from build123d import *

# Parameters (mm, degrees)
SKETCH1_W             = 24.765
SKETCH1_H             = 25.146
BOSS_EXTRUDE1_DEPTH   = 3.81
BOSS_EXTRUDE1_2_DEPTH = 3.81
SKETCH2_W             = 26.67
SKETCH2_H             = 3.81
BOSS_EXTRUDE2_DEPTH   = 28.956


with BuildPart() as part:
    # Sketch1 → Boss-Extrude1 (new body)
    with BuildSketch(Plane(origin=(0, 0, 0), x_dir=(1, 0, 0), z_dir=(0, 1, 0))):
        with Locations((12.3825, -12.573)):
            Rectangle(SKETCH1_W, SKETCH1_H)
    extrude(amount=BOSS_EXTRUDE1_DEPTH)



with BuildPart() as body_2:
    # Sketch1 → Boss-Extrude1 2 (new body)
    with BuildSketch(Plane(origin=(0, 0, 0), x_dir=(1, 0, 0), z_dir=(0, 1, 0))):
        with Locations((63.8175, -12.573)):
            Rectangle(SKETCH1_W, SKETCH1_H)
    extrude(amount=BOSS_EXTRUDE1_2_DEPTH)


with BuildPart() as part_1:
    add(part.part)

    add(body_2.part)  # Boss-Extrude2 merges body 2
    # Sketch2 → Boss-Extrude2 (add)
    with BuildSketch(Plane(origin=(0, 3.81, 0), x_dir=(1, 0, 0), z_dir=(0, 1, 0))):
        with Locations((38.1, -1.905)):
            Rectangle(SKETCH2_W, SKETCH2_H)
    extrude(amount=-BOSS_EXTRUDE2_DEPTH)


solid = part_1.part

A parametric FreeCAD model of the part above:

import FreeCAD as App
import Part
import Sketcher
from FreeCAD import Vector
Q = App.Units.Quantity

doc = App.newDocument("Part")
params = doc.addObject("Spreadsheet::Sheet", "Params")
for row, (alias, value) in enumerate([
    ("sketch1_height", "0.99 in"),
    ("sketch1_width", "0.975 in"),
    ("pad1_length", "0.15 in"),
    ("sketch2_height", "0.99 in"),
    ("sketch2_width", "0.975 in"),
    ("pad2_length", "0.15 in"),
    ("sketch3_width", "1.05 in"),
    ("sketch3_height", "0.15 in"),
    ("pad3_length", "1.14 in"),
], start=1):
    params.set(f"A{row}", alias)
    params.set(f"B{row}", "=" + value)
    params.setAlias(f"B{row}", alias)

body = doc.addObject("PartDesign::Body", "Body")

sketch1 = body.newObject("Sketcher::SketchObject", "Sketch")
sketch1.AttachmentSupport = (doc.getObject("XZ_Plane"), [""])
sketch1.MapMode = "FlatFace"
sketch1.addGeometry(Part.LineSegment(Vector(0, 0, 0), Vector(0, 25, 0)), False)
sketch1.addGeometry(Part.LineSegment(Vector(0, 25, 0), Vector(25, 25, 0)), False)
sketch1.addGeometry(Part.LineSegment(Vector(25, 25, 0), Vector(25, 0, 0)), False)
sketch1.addGeometry(Part.LineSegment(Vector(25, 0, 0), Vector(0, 0, 0)), False)
sketch1.addConstraint(Sketcher.Constraint("Coincident", 0, 2, 1, 1))
sketch1.addConstraint(Sketcher.Constraint("Coincident", 1, 2, 2, 1))
sketch1.addConstraint(Sketcher.Constraint("Coincident", 2, 2, 3, 1))
sketch1.addConstraint(Sketcher.Constraint("Coincident", 3, 2, 0, 1))
sketch1.addConstraint(Sketcher.Constraint("Vertical", 0))
sketch1.addConstraint(Sketcher.Constraint("Horizontal", 1))
sketch1.addConstraint(Sketcher.Constraint("Vertical", 2))
sketch1.addConstraint(Sketcher.Constraint("Horizontal", 3))
sketch1.addConstraint(Sketcher.Constraint("Coincident", 3, 2, -1, 1))
sketch1.addConstraint(Sketcher.Constraint("DistanceY", 0, 1, 0, 2, Q("0.99 in")))
sketch1.addConstraint(Sketcher.Constraint("DistanceX", 1, 1, 1, 2, Q("0.975 in")))
sketch1.setExpression("Constraints[9]", "Params.sketch1_height")
sketch1.setExpression("Constraints[10]", "Params.sketch1_width")
pad1 = body.newObject("PartDesign::Pad", "Pad")
pad1.Profile = sketch1
pad1.setExpression("Length", "Params.pad1_length")
pad1.Reversed = True
body2 = doc.addObject("PartDesign::Body", "Body001")

sketch2 = body2.newObject("Sketcher::SketchObject", "Sketch001")
sketch2.AttachmentSupport = (doc.getObject("XZ_Plane001"), [""])
sketch2.MapMode = "FlatFace"
sketch2.addGeometry(Part.LineSegment(Vector(51, 0, 0), Vector(51, 25, 0)), False)
sketch2.addGeometry(Part.LineSegment(Vector(51, 25, 0), Vector(76, 25, 0)), False)
sketch2.addGeometry(Part.LineSegment(Vector(76, 25, 0), Vector(76, 0, 0)), False)
sketch2.addGeometry(Part.LineSegment(Vector(76, 0, 0), Vector(51, 0, 0)), False)
sketch2.addConstraint(Sketcher.Constraint("Coincident", 0, 2, 1, 1))
sketch2.addConstraint(Sketcher.Constraint("Coincident", 1, 2, 2, 1))
sketch2.addConstraint(Sketcher.Constraint("Coincident", 2, 2, 3, 1))
sketch2.addConstraint(Sketcher.Constraint("Coincident", 3, 2, 0, 1))
sketch2.addConstraint(Sketcher.Constraint("Vertical", 0))
sketch2.addConstraint(Sketcher.Constraint("Horizontal", 1))
sketch2.addConstraint(Sketcher.Constraint("Vertical", 2))
sketch2.addConstraint(Sketcher.Constraint("Horizontal", 3))
sketch2.addConstraint(Sketcher.Constraint("PointOnObject", 2, 2, -1))
sketch2.addConstraint(Sketcher.Constraint("DistanceX", -1, 1, 1, 2, Q("3 in")))
sketch2.addConstraint(Sketcher.Constraint("DistanceY", 0, 1, 0, 2, Q("0.99 in")))
sketch2.addConstraint(Sketcher.Constraint("DistanceX", 1, 1, 1, 2, Q("0.975 in")))
sketch2.setExpression("Constraints[10]", "Params.sketch2_height")
sketch2.setExpression("Constraints[11]", "Params.sketch2_width")
pad2 = body2.newObject("PartDesign::Pad", "Pad001")
pad2.Profile = sketch2
pad2.setExpression("Length", "Params.pad2_length")
pad2.Reversed = True
body.AllowCompound = True
doc.recompute()

boolean = body.newObject("PartDesign::Boolean", "Boolean")
boolean.Type = "Fuse"
boolean.addObjects([body2])

sketch3 = body.newObject("Sketcher::SketchObject", "Sketch002")
sketch3.AttachmentSupport = (doc.getObject("XZ_Plane"), [""])
sketch3.MapMode = "FlatFace"
sketch3.AttachmentOffset = App.Placement(Vector(0, 0, -0.15 * 25.4), App.Rotation())
sketch3.addGeometry(Part.LineSegment(Vector(24.8, 0, 0), Vector(24.8, 3.8, 0)), False)
sketch3.addGeometry(Part.LineSegment(Vector(24.8, 3.8, 0), Vector(51.4, 3.8, 0)), False)
sketch3.addGeometry(Part.LineSegment(Vector(51.4, 3.8, 0), Vector(51.4, 0, 0)), False)
sketch3.addGeometry(Part.LineSegment(Vector(51.4, 0, 0), Vector(24.8, 0, 0)), False)
sketch3.addConstraint(Sketcher.Constraint("Coincident", 0, 2, 1, 1))
sketch3.addConstraint(Sketcher.Constraint("Coincident", 1, 2, 2, 1))
sketch3.addConstraint(Sketcher.Constraint("Coincident", 2, 2, 3, 1))
sketch3.addConstraint(Sketcher.Constraint("Coincident", 3, 2, 0, 1))
sketch3.addConstraint(Sketcher.Constraint("Vertical", 0))
sketch3.addConstraint(Sketcher.Constraint("Horizontal", 1))
sketch3.addConstraint(Sketcher.Constraint("Vertical", 2))
sketch3.addConstraint(Sketcher.Constraint("Horizontal", 3))
sketch3.addConstraint(Sketcher.Constraint("PointOnObject", 2, 2, -1))
sketch3.addConstraint(Sketcher.Constraint("DistanceX", 1, 1, 1, 2, Q("1.05 in")))
sketch3.addConstraint(Sketcher.Constraint("DistanceY", 0, 1, 0, 2, Q("0.15 in")))
sketch3.addConstraint(Sketcher.Constraint("DistanceX", -1, 1, 0, 2, Q("0.975 in")))
sketch3.setExpression("Constraints[9]", "Params.sketch3_width")
sketch3.setExpression("Constraints[10]", "Params.sketch3_height")
pad3 = body.newObject("PartDesign::Pad", "Pad002")
pad3.Profile = sketch3
pad3.setExpression("Length", "Params.pad3_length")

doc.recompute()
